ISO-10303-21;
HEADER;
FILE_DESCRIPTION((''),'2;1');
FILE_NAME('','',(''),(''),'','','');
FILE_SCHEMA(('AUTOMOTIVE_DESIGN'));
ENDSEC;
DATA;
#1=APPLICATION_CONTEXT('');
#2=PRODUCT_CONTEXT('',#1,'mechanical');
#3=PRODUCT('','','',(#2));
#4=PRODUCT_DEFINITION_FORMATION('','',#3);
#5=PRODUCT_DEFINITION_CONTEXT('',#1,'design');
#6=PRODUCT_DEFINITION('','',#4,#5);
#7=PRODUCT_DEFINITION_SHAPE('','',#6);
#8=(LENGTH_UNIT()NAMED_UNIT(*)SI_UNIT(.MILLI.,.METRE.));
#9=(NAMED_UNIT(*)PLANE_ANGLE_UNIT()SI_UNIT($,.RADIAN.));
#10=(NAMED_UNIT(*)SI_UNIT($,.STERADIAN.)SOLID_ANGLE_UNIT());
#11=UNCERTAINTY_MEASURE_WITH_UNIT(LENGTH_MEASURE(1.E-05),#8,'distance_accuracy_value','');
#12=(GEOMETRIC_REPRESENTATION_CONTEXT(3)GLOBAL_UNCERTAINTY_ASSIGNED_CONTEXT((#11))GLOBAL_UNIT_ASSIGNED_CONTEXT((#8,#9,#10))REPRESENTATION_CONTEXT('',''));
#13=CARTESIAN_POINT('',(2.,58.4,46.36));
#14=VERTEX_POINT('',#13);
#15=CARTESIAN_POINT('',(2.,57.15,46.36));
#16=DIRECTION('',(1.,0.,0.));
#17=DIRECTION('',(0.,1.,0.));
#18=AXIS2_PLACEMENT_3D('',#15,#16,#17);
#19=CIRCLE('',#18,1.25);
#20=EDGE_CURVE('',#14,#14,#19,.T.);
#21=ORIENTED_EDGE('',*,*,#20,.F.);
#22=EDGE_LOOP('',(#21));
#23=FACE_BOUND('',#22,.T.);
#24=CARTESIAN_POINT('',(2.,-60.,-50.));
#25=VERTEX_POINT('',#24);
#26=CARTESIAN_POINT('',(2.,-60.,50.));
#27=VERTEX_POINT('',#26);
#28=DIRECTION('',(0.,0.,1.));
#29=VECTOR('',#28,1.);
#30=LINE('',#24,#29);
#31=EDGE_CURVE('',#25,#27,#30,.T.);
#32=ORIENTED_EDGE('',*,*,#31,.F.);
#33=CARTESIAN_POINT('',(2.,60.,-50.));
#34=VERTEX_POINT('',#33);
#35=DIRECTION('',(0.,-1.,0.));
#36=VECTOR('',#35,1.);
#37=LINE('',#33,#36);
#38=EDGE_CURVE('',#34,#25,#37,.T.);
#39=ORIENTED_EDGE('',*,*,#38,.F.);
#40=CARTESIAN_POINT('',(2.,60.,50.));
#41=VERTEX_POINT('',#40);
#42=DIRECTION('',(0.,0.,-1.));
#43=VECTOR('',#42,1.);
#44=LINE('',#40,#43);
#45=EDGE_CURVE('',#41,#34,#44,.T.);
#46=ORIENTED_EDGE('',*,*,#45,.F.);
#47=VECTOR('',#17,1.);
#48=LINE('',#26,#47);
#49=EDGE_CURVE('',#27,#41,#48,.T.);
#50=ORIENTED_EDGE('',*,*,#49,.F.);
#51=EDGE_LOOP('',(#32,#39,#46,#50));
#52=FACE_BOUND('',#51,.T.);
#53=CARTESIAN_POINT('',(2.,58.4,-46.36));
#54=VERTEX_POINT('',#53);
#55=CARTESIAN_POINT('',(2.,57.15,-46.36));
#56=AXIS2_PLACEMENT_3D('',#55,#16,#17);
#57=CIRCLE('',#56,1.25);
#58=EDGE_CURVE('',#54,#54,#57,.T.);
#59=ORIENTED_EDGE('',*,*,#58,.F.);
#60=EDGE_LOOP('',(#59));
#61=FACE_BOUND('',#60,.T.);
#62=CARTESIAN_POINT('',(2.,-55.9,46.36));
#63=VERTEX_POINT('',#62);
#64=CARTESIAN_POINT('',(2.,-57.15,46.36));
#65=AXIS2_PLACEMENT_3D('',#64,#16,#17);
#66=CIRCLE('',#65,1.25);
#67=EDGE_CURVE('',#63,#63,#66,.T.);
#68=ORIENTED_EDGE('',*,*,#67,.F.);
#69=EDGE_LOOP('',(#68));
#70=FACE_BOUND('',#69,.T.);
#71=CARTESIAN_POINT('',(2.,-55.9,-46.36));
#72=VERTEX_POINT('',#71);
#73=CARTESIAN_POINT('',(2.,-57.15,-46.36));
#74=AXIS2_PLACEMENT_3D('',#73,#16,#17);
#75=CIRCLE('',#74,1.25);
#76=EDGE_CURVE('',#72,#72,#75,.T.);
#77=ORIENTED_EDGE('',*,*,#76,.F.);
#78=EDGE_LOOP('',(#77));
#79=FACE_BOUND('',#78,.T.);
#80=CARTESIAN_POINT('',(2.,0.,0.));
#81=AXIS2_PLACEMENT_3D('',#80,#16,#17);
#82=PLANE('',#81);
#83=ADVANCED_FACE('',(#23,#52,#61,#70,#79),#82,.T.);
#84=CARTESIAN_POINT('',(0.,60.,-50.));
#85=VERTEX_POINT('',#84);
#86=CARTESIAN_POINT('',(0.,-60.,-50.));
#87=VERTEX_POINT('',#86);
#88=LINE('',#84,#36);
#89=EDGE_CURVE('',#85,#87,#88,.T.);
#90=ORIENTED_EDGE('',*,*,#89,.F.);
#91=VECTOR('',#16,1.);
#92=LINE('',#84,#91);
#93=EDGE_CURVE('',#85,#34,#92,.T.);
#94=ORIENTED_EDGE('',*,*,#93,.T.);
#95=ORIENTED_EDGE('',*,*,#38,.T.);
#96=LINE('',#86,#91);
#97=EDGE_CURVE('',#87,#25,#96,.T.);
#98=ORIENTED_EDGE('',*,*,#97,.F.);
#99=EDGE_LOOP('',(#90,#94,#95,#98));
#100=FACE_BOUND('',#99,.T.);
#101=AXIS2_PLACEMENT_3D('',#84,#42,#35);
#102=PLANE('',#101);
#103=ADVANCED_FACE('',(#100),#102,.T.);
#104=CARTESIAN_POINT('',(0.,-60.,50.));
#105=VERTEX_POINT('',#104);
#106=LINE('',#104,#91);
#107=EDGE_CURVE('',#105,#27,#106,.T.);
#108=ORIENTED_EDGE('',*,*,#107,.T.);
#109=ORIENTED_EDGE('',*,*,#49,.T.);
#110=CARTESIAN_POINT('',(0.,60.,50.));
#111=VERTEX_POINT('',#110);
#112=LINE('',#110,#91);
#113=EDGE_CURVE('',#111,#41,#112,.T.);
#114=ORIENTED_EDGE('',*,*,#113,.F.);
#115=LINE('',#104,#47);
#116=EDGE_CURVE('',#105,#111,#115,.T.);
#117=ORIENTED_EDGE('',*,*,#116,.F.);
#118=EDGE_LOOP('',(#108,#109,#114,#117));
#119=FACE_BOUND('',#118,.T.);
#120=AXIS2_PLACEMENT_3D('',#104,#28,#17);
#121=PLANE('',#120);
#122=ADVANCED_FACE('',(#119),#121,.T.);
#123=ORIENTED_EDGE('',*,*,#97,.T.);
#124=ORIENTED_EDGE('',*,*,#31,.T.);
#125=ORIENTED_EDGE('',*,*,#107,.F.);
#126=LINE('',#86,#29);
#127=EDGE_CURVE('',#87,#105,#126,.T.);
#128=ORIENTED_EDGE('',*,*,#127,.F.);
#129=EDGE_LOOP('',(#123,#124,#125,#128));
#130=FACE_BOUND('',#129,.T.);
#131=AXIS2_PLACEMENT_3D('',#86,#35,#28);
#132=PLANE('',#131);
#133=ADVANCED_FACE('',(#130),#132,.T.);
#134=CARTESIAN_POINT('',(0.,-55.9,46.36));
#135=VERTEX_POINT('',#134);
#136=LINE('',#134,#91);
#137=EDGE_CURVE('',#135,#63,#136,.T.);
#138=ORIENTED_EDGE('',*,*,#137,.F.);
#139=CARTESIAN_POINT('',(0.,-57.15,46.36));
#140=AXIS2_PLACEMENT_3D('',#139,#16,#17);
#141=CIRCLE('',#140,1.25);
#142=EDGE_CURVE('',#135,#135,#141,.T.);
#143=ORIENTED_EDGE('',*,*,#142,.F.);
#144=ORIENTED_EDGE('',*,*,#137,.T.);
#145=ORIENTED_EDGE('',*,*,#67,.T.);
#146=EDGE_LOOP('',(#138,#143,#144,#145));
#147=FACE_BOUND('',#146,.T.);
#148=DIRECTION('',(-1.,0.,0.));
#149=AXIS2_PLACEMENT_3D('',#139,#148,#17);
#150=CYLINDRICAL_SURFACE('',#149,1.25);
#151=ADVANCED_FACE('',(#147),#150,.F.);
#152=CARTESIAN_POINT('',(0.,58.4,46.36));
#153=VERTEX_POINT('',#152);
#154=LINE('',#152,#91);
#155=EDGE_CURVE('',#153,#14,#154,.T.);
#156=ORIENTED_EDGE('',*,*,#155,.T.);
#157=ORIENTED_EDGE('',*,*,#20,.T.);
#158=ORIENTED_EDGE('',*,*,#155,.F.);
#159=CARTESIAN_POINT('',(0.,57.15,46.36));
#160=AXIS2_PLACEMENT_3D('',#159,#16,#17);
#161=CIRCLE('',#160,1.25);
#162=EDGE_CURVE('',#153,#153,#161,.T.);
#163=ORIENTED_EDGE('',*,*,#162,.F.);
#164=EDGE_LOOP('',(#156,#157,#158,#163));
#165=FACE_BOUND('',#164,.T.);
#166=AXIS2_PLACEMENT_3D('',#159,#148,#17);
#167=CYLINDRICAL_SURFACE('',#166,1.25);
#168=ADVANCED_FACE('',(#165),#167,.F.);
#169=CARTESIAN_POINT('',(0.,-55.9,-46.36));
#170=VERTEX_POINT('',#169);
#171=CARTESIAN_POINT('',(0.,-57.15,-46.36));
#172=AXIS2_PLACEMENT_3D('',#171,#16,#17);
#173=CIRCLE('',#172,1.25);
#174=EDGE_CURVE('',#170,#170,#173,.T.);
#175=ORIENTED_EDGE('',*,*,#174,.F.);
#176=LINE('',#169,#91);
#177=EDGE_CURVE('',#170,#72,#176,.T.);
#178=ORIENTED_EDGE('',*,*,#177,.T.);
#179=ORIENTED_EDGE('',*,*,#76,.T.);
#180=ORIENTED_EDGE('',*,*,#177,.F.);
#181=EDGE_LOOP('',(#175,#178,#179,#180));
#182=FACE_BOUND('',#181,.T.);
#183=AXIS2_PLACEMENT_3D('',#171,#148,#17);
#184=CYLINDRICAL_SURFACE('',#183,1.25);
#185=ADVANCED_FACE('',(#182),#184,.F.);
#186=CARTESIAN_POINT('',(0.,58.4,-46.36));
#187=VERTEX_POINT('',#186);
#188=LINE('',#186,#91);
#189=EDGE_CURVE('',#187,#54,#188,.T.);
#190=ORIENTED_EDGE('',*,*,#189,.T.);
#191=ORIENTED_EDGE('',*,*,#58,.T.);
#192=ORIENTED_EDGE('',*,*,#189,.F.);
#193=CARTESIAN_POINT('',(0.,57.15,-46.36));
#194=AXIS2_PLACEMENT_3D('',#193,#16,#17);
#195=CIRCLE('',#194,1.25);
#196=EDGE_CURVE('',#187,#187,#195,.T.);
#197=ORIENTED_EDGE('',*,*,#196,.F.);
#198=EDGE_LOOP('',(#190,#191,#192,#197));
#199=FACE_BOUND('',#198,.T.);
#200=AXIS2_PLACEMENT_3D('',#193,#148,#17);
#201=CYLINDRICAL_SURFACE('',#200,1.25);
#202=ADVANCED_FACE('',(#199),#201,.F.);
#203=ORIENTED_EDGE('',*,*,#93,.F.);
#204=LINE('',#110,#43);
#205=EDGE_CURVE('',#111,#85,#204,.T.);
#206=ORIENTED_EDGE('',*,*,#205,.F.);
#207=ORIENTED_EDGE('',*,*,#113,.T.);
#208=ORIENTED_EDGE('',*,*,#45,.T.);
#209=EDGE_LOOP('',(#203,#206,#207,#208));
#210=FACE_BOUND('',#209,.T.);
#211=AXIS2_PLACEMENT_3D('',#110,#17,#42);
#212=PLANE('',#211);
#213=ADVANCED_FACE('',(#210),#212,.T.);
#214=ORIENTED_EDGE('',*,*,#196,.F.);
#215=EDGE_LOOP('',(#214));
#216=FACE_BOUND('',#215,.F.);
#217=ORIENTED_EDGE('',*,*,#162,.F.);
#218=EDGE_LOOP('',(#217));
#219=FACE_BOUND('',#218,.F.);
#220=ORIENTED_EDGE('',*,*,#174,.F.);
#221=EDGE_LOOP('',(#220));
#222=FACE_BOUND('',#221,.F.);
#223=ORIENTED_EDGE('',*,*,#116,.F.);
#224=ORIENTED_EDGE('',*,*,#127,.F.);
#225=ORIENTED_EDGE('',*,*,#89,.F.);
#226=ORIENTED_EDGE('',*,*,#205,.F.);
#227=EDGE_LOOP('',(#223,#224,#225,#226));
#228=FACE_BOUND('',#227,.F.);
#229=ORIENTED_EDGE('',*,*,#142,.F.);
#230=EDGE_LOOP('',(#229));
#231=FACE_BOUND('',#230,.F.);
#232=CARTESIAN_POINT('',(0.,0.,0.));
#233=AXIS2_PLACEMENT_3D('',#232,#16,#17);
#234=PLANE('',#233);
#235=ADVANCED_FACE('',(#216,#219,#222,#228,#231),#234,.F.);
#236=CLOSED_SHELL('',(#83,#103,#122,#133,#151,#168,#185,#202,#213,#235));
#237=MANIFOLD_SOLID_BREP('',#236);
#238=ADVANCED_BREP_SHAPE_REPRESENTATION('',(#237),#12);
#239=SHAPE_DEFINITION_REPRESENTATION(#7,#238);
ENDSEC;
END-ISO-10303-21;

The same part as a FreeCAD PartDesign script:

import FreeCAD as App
import Part
import Sketcher
from FreeCAD import Vector

doc = App.newDocument("Part")
body = doc.addObject("PartDesign::Body", "Body")

# Sketch on YZ plane
sketch1 = doc.addObject("Sketcher::SketchObject", "Sketch")
body.addObject(sketch1)
sketch1.AttachmentSupport = (doc.YZ_Plane, [""])
sketch1.MapMode = "FlatFace"
sketch1.addGeometry(Part.LineSegment(Vector(60, 50, 0), Vector(-60, 50, 0)), False)
sketch1.addGeometry(Part.LineSegment(Vector(-60, 50, 0), Vector(-60, -50, 0)), False)
sketch1.addGeometry(Part.LineSegment(Vector(-60, -50, 0), Vector(60, -50, 0)), False)
sketch1.addGeometry(Part.LineSegment(Vector(60, -50, 0), Vector(60, 50, 0)), False)
sketch1.addGeometry(Part.Circle(Vector(-57.15, -46.36, 0), Vector(0, 0, 1), 1.25), False)
sketch1.addGeometry(Part.Circle(Vector(57.15, -46.36, 0), Vector(0, 0, 1), 1.25), False)
sketch1.addGeometry(Part.Circle(Vector(-57.15, 46.36, 0), Vector(0, 0, 1), 1.25), False)
sketch1.addGeometry(Part.Circle(Vector(57.15, 46.36, 0), Vector(0, 0, 1), 1.25), False)
sketch1.addConstraint(Sketcher.Constraint("Coincident", 0, 2, 1, 1))
sketch1.addConstraint(Sketcher.Constraint("Coincident", 1, 2, 2, 1))
sketch1.addConstraint(Sketcher.Constraint("Coincident", 2, 2, 3, 1))
sketch1.addConstraint(Sketcher.Constraint("Coincident", 3, 2, 0, 1))
sketch1.addConstraint(Sketcher.Constraint("Horizontal", 0))
sketch1.addConstraint(Sketcher.Constraint("Vertical", 1))
sketch1.addConstraint(Sketcher.Constraint("Horizontal", 2))
sketch1.addConstraint(Sketcher.Constraint("Vertical", 3))
sketch1.addConstraint(Sketcher.Constraint("Equal", 4, 5))
sketch1.addConstraint(Sketcher.Constraint("Equal", 5, 6))
sketch1.addConstraint(Sketcher.Constraint("Equal", 6, 7))
sketch1.addConstraint(Sketcher.Constraint("Symmetric", 5, 3, 6, 3, -1, 1))
sketch1.addConstraint(Sketcher.Constraint("Symmetric", 4, 3, 7, 3, -1, 1))
sketch1.addConstraint(Sketcher.Constraint("Symmetric", 0, 2, 2, 2, -1, 1))
sketch1.addConstraint(Sketcher.Constraint("Symmetric", 4, 3, 5, 3, -2))
sketch1.addConstraint(Sketcher.Constraint("Diameter", 4, 2.5))
sketch1.addConstraint(Sketcher.Constraint("DistanceX", 0, 2, 0, 1, 120.0))
sketch1.addConstraint(Sketcher.Constraint("DistanceY", 1, 2, 1, 1, 100.0))
sketch1.addConstraint(Sketcher.Constraint("DistanceX", 4, 3, 5, 3, 114.3))
sketch1.addConstraint(Sketcher.Constraint("DistanceY", 4, 3, 6, 3, 92.72))
pad1 = doc.addObject("PartDesign::Pad", "Pad")
body.addObject(pad1)
pad1.Profile = sketch1
pad1.Length = 2

doc.recompute()
